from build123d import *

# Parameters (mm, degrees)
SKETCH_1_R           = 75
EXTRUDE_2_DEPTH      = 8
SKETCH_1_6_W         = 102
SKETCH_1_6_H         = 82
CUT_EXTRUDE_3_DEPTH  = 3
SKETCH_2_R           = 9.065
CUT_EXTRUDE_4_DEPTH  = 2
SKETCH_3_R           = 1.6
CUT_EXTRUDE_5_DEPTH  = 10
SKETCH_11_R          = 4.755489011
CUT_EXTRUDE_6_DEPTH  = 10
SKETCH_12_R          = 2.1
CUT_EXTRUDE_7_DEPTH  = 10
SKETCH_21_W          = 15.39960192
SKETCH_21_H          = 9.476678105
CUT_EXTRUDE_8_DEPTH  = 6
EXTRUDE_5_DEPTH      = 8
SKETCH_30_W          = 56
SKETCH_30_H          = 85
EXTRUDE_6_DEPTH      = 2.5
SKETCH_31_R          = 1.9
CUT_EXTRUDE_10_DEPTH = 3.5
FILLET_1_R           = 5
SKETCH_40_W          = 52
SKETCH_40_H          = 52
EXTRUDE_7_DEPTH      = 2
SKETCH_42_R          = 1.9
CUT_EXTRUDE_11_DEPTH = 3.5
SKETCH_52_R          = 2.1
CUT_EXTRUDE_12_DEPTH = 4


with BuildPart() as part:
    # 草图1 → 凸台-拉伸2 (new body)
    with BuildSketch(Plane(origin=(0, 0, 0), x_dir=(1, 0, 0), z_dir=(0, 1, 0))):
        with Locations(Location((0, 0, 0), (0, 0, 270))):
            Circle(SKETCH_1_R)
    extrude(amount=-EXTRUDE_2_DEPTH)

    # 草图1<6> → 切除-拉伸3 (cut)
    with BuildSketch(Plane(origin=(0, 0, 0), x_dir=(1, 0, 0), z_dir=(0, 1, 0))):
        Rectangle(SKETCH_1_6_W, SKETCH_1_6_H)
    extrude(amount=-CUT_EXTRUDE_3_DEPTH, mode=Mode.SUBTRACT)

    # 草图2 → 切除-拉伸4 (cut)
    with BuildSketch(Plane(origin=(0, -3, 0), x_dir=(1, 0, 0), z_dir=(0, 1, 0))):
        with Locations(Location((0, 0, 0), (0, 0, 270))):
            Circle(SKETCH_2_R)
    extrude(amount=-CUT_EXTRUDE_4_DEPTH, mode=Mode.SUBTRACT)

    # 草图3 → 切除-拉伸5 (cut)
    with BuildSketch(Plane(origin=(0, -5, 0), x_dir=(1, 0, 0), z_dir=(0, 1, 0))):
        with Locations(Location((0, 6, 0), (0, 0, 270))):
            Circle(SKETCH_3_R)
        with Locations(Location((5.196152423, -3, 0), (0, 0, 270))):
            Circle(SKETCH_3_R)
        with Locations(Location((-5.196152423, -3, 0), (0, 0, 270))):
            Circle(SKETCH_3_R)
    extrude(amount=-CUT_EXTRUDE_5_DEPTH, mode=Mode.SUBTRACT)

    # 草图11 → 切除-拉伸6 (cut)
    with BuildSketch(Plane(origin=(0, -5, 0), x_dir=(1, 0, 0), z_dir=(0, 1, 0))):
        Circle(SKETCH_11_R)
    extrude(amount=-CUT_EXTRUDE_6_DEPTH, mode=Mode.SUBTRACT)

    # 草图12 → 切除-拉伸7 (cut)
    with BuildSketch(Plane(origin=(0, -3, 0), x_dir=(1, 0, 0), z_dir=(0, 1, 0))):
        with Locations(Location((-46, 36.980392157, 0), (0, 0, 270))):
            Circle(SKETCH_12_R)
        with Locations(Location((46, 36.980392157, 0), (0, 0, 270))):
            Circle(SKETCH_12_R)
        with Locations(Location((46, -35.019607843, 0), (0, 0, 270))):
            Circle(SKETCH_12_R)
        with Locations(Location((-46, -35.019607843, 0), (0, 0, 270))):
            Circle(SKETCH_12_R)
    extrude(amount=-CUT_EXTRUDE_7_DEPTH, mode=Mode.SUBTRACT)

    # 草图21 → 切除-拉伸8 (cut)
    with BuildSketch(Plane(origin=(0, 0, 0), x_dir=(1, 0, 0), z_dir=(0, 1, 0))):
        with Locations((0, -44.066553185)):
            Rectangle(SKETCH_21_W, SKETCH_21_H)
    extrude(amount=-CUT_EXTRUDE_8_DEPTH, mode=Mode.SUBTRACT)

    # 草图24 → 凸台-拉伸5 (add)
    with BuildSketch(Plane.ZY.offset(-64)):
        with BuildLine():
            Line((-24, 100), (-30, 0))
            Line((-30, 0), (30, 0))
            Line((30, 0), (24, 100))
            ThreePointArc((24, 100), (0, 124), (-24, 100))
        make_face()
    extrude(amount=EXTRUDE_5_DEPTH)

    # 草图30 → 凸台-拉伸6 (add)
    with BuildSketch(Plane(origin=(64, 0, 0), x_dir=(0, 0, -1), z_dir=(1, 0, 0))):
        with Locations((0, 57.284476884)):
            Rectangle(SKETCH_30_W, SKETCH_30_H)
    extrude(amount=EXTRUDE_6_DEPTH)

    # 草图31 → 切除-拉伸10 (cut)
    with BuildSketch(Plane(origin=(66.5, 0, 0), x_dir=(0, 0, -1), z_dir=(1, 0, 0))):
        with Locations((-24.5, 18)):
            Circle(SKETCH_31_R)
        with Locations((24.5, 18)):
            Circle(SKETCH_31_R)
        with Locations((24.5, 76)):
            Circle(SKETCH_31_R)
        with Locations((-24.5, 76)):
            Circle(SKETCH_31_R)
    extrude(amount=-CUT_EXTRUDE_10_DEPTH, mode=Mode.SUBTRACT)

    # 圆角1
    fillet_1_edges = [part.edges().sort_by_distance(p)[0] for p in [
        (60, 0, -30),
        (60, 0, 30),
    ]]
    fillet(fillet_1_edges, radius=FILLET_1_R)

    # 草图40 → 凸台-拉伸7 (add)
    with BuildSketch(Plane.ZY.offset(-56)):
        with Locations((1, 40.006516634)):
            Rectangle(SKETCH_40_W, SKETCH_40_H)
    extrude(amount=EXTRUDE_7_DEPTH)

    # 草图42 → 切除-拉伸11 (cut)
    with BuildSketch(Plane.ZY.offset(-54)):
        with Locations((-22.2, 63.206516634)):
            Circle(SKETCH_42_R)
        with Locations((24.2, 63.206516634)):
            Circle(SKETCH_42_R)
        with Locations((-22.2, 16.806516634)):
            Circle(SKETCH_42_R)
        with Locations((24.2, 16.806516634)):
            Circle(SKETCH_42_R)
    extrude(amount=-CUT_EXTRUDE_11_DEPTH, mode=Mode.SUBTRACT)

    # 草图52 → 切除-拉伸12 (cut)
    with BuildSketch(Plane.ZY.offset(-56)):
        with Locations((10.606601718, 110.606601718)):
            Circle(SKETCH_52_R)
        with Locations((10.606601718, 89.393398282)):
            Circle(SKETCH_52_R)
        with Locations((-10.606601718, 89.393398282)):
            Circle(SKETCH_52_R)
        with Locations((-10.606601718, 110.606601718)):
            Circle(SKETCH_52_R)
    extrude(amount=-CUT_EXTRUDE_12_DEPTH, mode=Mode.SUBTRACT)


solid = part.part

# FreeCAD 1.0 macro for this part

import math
import FreeCAD as App
import Part
import Sketcher
from FreeCAD import Vector
Q = App.Units.Quantity


def edges_at(feature, points):
    """Names of the edges that pass closest to the given points."""
    edges = feature.Shape.Edges
    near = lambda p: min(range(len(edges)), key=lambda i: edges[i].distToShape(Part.Vertex(*p))[0])
    return sorted({f"Edge{near(p) + 1}" for p in points})

doc = App.newDocument("Part")
body = doc.addObject("PartDesign::Body", "Body")

# Sketch on XZ plane
sketch1 = body.newObject("Sketcher::SketchObject", "Sketch")
sketch1.AttachmentSupport = (doc.getObject("XZ_Plane"), [""])
sketch1.MapMode = "FlatFace"
sketch1.addGeometry(Part.Circle(Vector(0, 0, 0), Vector(0, 0, 1), 75), False)
sketch1.addConstraint(Sketcher.Constraint("Coincident", 0, 3, -1, 1))
sketch1.addConstraint(Sketcher.Constraint("Diameter", 0, Q("150 mm")))
pad1 = body.newObject("PartDesign::Pad", "Pad")
pad1.Profile = sketch1
pad1.Length = 8

# Sketch on XZ plane
sketch2 = body.newObject("Sketcher::SketchObject", "Sketch001")
sketch2.AttachmentSupport = (doc.getObject("XZ_Plane"), [""])
sketch2.MapMode = "FlatFace"
sketch2.addGeometry(Part.LineSegment(Vector(-51, -41, 0), Vector(-51, 41, 0)), False)
sketch2.addGeometry(Part.LineSegment(Vector(-51, 41, 0), Vector(51, 41, 0)), False)
sketch2.addGeometry(Part.LineSegment(Vector(51, 41, 0), Vector(51, -41, 0)), False)
sketch2.addGeometry(Part.LineSegment(Vector(51, -41, 0), Vector(-51, -41, 0)), False)
sketch2.addConstraint(Sketcher.Constraint("Coincident", 0, 2, 1, 1))
sketch2.addConstraint(Sketcher.Constraint("Coincident", 1, 2, 2, 1))
sketch2.addConstraint(Sketcher.Constraint("Coincident", 2, 2, 3, 1))
sketch2.addConstraint(Sketcher.Constraint("Coincident", 3, 2, 0, 1))
sketch2.addConstraint(Sketcher.Constraint("Vertical", 0))
sketch2.addConstraint(Sketcher.Constraint("Horizontal", 1))
sketch2.addConstraint(Sketcher.Constraint("Vertical", 2))
sketch2.addConstraint(Sketcher.Constraint("Horizontal", 3))
sketch2.addConstraint(Sketcher.Constraint("Symmetric", 0, 2, 2, 2, -1, 1))
sketch2.addConstraint(Sketcher.Constraint("DistanceX", 1, 1, 1, 2, Q("102 mm")))
sketch2.addConstraint(Sketcher.Constraint("DistanceY", 0, 1, 0, 2, Q("82 mm")))
pocket1 = body.newObject("PartDesign::Pocket", "Pocket")
pocket1.Profile = sketch2
pocket1.Length = 3
pocket1.Reversed = True

# Sketch on XZ plane
sketch3 = body.newObject("Sketcher::SketchObject", "Sketch002")
sketch3.AttachmentSupport = (doc.getObject("XZ_Plane"), [""])
sketch3.MapMode = "FlatFace"
sketch3.AttachmentOffset = App.Placement(Vector(0, 0, 3), App.Rotation())
sketch3.addGeometry(Part.Circle(Vector(0, 0, 0), Vector(0, 0, 1), 9), False)
sketch3.addConstraint(Sketcher.Constraint("Coincident", 0, 3, -1, 1))
sketch3.addConstraint(Sketcher.Constraint("Diameter", 0, Q("18.13 mm")))
pocket2 = body.newObject("PartDesign::Pocket", "Pocket001")
pocket2.Profile = sketch3
pocket2.Length = 2
pocket2.Reversed = True

# Sketch on XZ plane
sketch4 = body.newObject("Sketcher::SketchObject", "Sketch003")
sketch4.AttachmentSupport = (doc.getObject("XZ_Plane"), [""])
sketch4.MapMode = "FlatFace"
sketch4.AttachmentOffset = App.Placement(Vector(0, 0, 5), App.Rotation())
sketch4.addGeometry(Part.Circle(Vector(0, -6, 0), Vector(0, 0, 1), 1.6), False)
sketch4.addGeometry(Part.Circle(Vector(5.2, 3, 0), Vector(0, 0, 1), 1.6), False)
sketch4.addGeometry(Part.Circle(Vector(-5.2, 3, 0), Vector(0, 0, 1), 1.6), False)
sketch4.addConstraint(Sketcher.Constraint("Equal", 0, 1))
sketch4.addConstraint(Sketcher.Constraint("Equal", 1, 2))
sketch4.addConstraint(Sketcher.Constraint("Symmetric", 1, 3, 2, 3, -2))
sketch4.addConstraint(Sketcher.Constraint("PointOnObject", 0, 3, -2))
sketch4.addConstraint(Sketcher.Constraint("Diameter", 0, Q("3.2 mm")))
sketch4.addConstraint(Sketcher.Constraint("DistanceY", 0, 3, -1, 1, Q("6 mm")))
sketch4.addConstraint(Sketcher.Constraint("DistanceY", -1, 1, 1, 3, Q("3 mm")))
sketch4.addConstraint(Sketcher.Constraint("DistanceX", -1, 1, 1, 3, Q("5.196152 mm")))
pocket3 = body.newObject("PartDesign::Pocket", "Pocket002")
pocket3.Profile = sketch4
pocket3.Length = 10
pocket3.Reversed = True

# Sketch on XZ plane
sketch5 = body.newObject("Sketcher::SketchObject", "Sketch004")
sketch5.AttachmentSupport = (doc.getObject("XZ_Plane"), [""])
sketch5.MapMode = "FlatFace"
sketch5.AttachmentOffset = App.Placement(Vector(0, 0, 5), App.Rotation())
sketch5.addGeometry(Part.Circle(Vector(0, 0, 0), Vector(0, 0, 1), 4.8), False)
sketch5.addConstraint(Sketcher.Constraint("Coincident", 0, 3, -1, 1))
sketch5.addConstraint(Sketcher.Constraint("Diameter", 0, Q("9.510978 mm")))
pocket4 = body.newObject("PartDesign::Pocket", "Pocket003")
pocket4.Profile = sketch5
pocket4.Length = 10
pocket4.Reversed = True

# Sketch on XZ plane
sketch6 = body.newObject("Sketcher::SketchObject", "Sketch005")
sketch6.AttachmentSupport = (doc.getObject("XZ_Plane"), [""])
sketch6.MapMode = "FlatFace"
sketch6.AttachmentOffset = App.Placement(Vector(0, 0, 3), App.Rotation())
sketch6.addGeometry(Part.Circle(Vector(-46, -37, 0), Vector(0, 0, 1), 2.1), False)
sketch6.addGeometry(Part.Circle(Vector(46, -37, 0), Vector(0, 0, 1), 2.1), False)
sketch6.addGeometry(Part.Circle(Vector(46, 35, 0), Vector(0, 0, 1), 2.1), False)
sketch6.addGeometry(Part.Circle(Vector(-46, 35, 0), Vector(0, 0, 1), 2.1), False)
sketch6.addConstraint(Sketcher.Constraint("Equal", 0, 1))
sketch6.addConstraint(Sketcher.Constraint("Equal", 1, 2))
sketch6.addConstraint(Sketcher.Constraint("Equal", 2, 3))
sketch6.addConstraint(Sketcher.Constraint("Symmetric", 0, 3, 1, 3, -2))
sketch6.addConstraint(Sketcher.Constraint("Symmetric", 2, 3, 3, 3, -2))
sketch6.addConstraint(Sketcher.Constraint("Vertical", 1, 3, 2, 3))
sketch6.addConstraint(Sketcher.Constraint("Diameter", 0, Q("4.2 mm")))
sketch6.addConstraint(Sketcher.Constraint("DistanceX", 0, 3, -1, 1, Q("46 mm")))
sketch6.addConstraint(Sketcher.Constraint("DistanceY", 1, 3, 2, 3, Q("72 mm")))
sketch6.addConstraint(Sketcher.Constraint("DistanceY", 0, 3, -1, 1, Q("36.980392 mm")))
pocket5 = body.newObject("PartDesign::Pocket", "Pocket004")
pocket5.Profile = sketch6
pocket5.Length = 10
pocket5.Reversed = True

# Sketch on XZ plane
sketch7 = body.newObject("Sketcher::SketchObject", "Sketch006")
sketch7.AttachmentSupport = (doc.getObject("XZ_Plane"), [""])
sketch7.MapMode = "FlatFace"
sketch7.addGeometry(Part.LineSegment(Vector(-8, 39, 0), Vector(-8, 49, 0)), False)
sketch7.addGeometry(Part.LineSegment(Vector(-8, 49, 0), Vector(8, 49, 0)), False)
sketch7.addGeometry(Part.LineSegment(Vector(8, 49, 0), Vector(8, 39, 0)), False)
sketch7.addGeometry(Part.LineSegment(Vector(8, 39, 0), Vector(-8, 39, 0)), False)
sketch7.addConstraint(Sketcher.Constraint("Coincident", 0, 2, 1, 1))
sketch7.addConstraint(Sketcher.Constraint("Coincident", 1, 2, 2, 1))
sketch7.addConstraint(Sketcher.Constraint("Coincident", 2, 2, 3, 1))
sketch7.addConstraint(Sketcher.Constraint("Coincident", 3, 2, 0, 1))
sketch7.addConstraint(Sketcher.Constraint("Vertical", 0))
sketch7.addConstraint(Sketcher.Constraint("Horizontal", 1))
sketch7.addConstraint(Sketcher.Constraint("Vertical", 2))
sketch7.addConstraint(Sketcher.Constraint("Horizontal", 3))
sketch7.addConstraint(Sketcher.Constraint("DistanceX", 1, 1, 1, 2, Q("15.399602 mm")))
sketch7.addConstraint(Sketcher.Constraint("DistanceY", 0, 1, 0, 2, Q("9.476678 mm")))
sketch7.addConstraint(Sketcher.Constraint("DistanceX", 0, 2, -1, 1, Q("7.699801 mm")))
sketch7.addConstraint(Sketcher.Constraint("DistanceY", -1, 1, 0, 2, Q("48.804892 mm")))
pocket6 = body.newObject("PartDesign::Pocket", "Pocket005")
pocket6.Profile = sketch7
pocket6.Length = 6
pocket6.Reversed = True

# Sketch on YZ plane
sketch8 = body.newObject("Sketcher::SketchObject", "Sketch007")
sketch8.AttachmentSupport = (doc.getObject("YZ_Plane"), [""])
sketch8.MapMode = "FlatFace"
sketch8.AttachmentOffset = App.Placement(Vector(0, 0, 64), App.Rotation())
sketch8.addGeometry(Part.LineSegment(Vector(100, -24, 0), Vector(0, -30, 0)), False)
sketch8.addGeometry(Part.LineSegment(Vector(0, -30, 0), Vector(0, 30, 0)), False)
sketch8.addGeometry(Part.LineSegment(Vector(0, 30, 0), Vector(100, 24, 0)), False)
sketch8.addGeometry(Part.ArcOfCircle(Part.Circle(Vector(100, 0, 0), Vector(0, 0, 1), 24), math.radians(-90), math.radians(90)), False)
sketch8.addConstraint(Sketcher.Constraint("Coincident", 0, 2, 1, 1))
sketch8.addConstraint(Sketcher.Constraint("Coincident", 1, 2, 2, 1))
sketch8.addConstraint(Sketcher.Constraint("Coincident", 2, 2, 3, 2))
sketch8.addConstraint(Sketcher.Constraint("Coincident", 3, 1, 0, 1))
sketch8.addConstraint(Sketcher.Constraint("Vertical", 1))
sketch8.addConstraint(Sketcher.Constraint("Symmetric", 0, 2, 1, 2, -1, 1))
sketch8.addConstraint(Sketcher.Constraint("Symmetric", 2, 2, 3, 1, -1))
sketch8.addConstraint(Sketcher.Constraint("Vertical", 3, 3, 2, 2))
sketch8.addConstraint(Sketcher.Constraint("Radius", 3, Q("24 mm")))
sketch8.addConstraint(Sketcher.Constraint("DistanceY", 1, 1, 1, 2, Q("60 mm")))
sketch8.addConstraint(Sketcher.Constraint("DistanceX", -1, 1, 3, 3, Q("100 mm")))
pad2 = body.newObject("PartDesign::Pad", "Pad001")
pad2.Profile = sketch8
pad2.Length = 8
pad2.Reversed = True

# Sketch on YZ plane
sketch9 = body.newObject("Sketcher::SketchObject", "Sketch008")
sketch9.AttachmentSupport = (doc.getObject("YZ_Plane"), [""])
sketch9.MapMode = "FlatFace"
sketch9.AttachmentOffset = App.Placement(Vector(0, 0, 64), App.Rotation())
sketch9.addGeometry(Part.LineSegment(Vector(100, 28, 0), Vector(15, 28, 0)), False)
sketch9.addGeometry(Part.LineSegment(Vector(15, 28, 0), Vector(15, -28, 0)), False)
sketch9.addGeometry(Part.LineSegment(Vector(15, -28, 0), Vector(100, -28, 0)), False)
sketch9.addGeometry(Part.LineSegment(Vector(100, -28, 0), Vector(100, 28, 0)), False)
sketch9.addConstraint(Sketcher.Constraint("Coincident", 0, 2, 1, 1))
sketch9.addConstraint(Sketcher.Constraint("Coincident", 1, 2, 2, 1))
sketch9.addConstraint(Sketcher.Constraint("Coincident", 2, 2, 3, 1))
sketch9.addConstraint(Sketcher.Constraint("Coincident", 3, 2, 0, 1))
sketch9.addConstraint(Sketcher.Constraint("Horizontal", 0))
sketch9.addConstraint(Sketcher.Constraint("Vertical", 1))
sketch9.addConstraint(Sketcher.Constraint("Horizontal", 2))
sketch9.addConstraint(Sketcher.Constraint("Vertical", 3))
sketch9.addConstraint(Sketcher.Constraint("DistanceX", 0, 2, 0, 1, Q("85 mm")))
sketch9.addConstraint(Sketcher.Constraint("DistanceY", 1, 2, 1, 1, Q("56 mm")))
sketch9.addConstraint(Sketcher.Constraint("DistanceY", -1, 1, 0, 2, Q("28 mm")))
sketch9.addConstraint(Sketcher.Constraint("DistanceX", -1, 1, 0, 2, Q("14.784477 mm")))
pad3 = body.newObject("PartDesign::Pad", "Pad002")
pad3.Profile = sketch9
pad3.Length = 2.5

# Sketch on YZ plane
sketch10 = body.newObject("Sketcher::SketchObject", "Sketch009")
sketch10.AttachmentSupport = (doc.getObject("YZ_Plane"), [""])
sketch10.MapMode = "FlatFace"
sketch10.AttachmentOffset = App.Placement(Vector(0, 0, 66.5), App.Rotation())
sketch10.addGeometry(Part.Circle(Vector(18, 24.5, 0), Vector(0, 0, 1), 1.9), False)
sketch10.addGeometry(Part.Circle(Vector(18, -24.5, 0), Vector(0, 0, 1), 1.9), False)
sketch10.addGeometry(Part.Circle(Vector(76, -24.5, 0), Vector(0, 0, 1), 1.9), False)
sketch10.addGeometry(Part.Circle(Vector(76, 24.5, 0), Vector(0, 0, 1), 1.9), False)
sketch10.addConstraint(Sketcher.Constraint("Equal", 0, 1))
sketch10.addConstraint(Sketcher.Constraint("Equal", 1, 2))
sketch10.addConstraint(Sketcher.Constraint("Equal", 2, 3))
sketch10.addConstraint(Sketcher.Constraint("Symmetric", 0, 3, 1, 3, -1))
sketch10.addConstraint(Sketcher.Constraint("Symmetric", 2, 3, 3, 3, -1))
sketch10.addConstraint(Sketcher.Constraint("Horizontal", 1, 3, 2, 3))
sketch10.addConstraint(Sketcher.Constraint("Diameter", 0, Q("3.8 mm")))
sketch10.addConstraint(Sketcher.Constraint("DistanceX", -1, 1, 0, 3, Q("18 mm")))
sketch10.addConstraint(Sketcher.Constraint("DistanceX", -1, 1, 2, 3, Q("76 mm")))
sketch10.addConstraint(Sketcher.Constraint("DistanceY", 1, 3, 0, 3, Q("49 mm")))
pocket7 = body.newObject("PartDesign::Pocket", "Pocket006")
pocket7.Profile = sketch10
pocket7.Length = 3.5
doc.recompute()

fillet = body.newObject("PartDesign::Fillet", "Fillet")
fillet.Base = (pocket7, edges_at(pocket7, [(60, 0, -30), (60, 0, 30)]))
fillet.Radius = 5

# Sketch on YZ plane
sketch11 = body.newObject("Sketcher::SketchObject", "Sketch010")
sketch11.AttachmentSupport = (doc.getObject("YZ_Plane"), [""])
sketch11.MapMode = "FlatFace"
sketch11.AttachmentOffset = App.Placement(Vector(0, 0, 56), App.Rotation())
sketch11.addGeometry(Part.LineSegment(Vector(66, -25, 0), Vector(14, -25, 0)), False)
sketch11.addGeometry(Part.LineSegment(Vector(14, -25, 0), Vector(14, 27, 0)), False)
sketch11.addGeometry(Part.LineSegment(Vector(14, 27, 0), Vector(66, 27, 0)), False)
sketch11.addGeometry(Part.LineSegment(Vector(66, 27, 0), Vector(66, -25, 0)), False)
sketch11.addConstraint(Sketcher.Constraint("Coincident", 0, 2, 1, 1))
sketch11.addConstraint(Sketcher.Constraint("Coincident", 1, 2, 2, 1))
sketch11.addConstraint(Sketcher.Constraint("Coincident", 2, 2, 3, 1))
sketch11.addConstraint(Sketcher.Constraint("Coincident", 3, 2, 0, 1))
sketch11.addConstraint(Sketcher.Constraint("Horizontal", 0))
sketch11.addConstraint(Sketcher.Constraint("Vertical", 1))
sketch11.addConstraint(Sketcher.Constraint("Horizontal", 2))
sketch11.addConstraint(Sketcher.Constraint("Vertical", 3))
sketch11.addConstraint(Sketcher.Constraint("Equal", 2, 1))
sketch11.addConstraint(Sketcher.Constraint("DistanceX", 0, 2, 0, 1, Q("52 mm")))
sketch11.addConstraint(Sketcher.Constraint("DistanceY", 0, 2, -1, 1, Q("25 mm")))
sketch11.addConstraint(Sketcher.Constraint("DistanceX", -1, 1, 0, 2, Q("14.006517 mm")))
pad4 = body.newObject("PartDesign::Pad", "Pad003")
pad4.Profile = sketch11
pad4.Length = 2
pad4.Reversed = True

# Sketch on YZ plane
sketch12 = body.newObject("Sketcher::SketchObject", "Sketch011")
sketch12.AttachmentSupport = (doc.getObject("YZ_Plane"), [""])
sketch12.MapMode = "FlatFace"
sketch12.AttachmentOffset = App.Placement(Vector(0, 0, 54), App.Rotation())
sketch12.addGeometry(Part.Circle(Vector(63.2, -22.2, 0), Vector(0, 0, 1), 1.9), False)
sketch12.addGeometry(Part.Circle(Vector(63.2, 24.2, 0), Vector(0, 0, 1), 1.9), False)
sketch12.addGeometry(Part.Circle(Vector(16.8, -22.2, 0), Vector(0, 0, 1), 1.9), False)
sketch12.addGeometry(Part.Circle(Vector(16.8, 24.2, 0), Vector(0, 0, 1), 1.9), False)
sketch12.addConstraint(Sketcher.Constraint("Equal", 0, 1))
sketch12.addConstraint(Sketcher.Constraint("Equal", 1, 2))
sketch12.addConstraint(Sketcher.Constraint("Equal", 2, 3))
sketch12.addConstraint(Sketcher.Constraint("Horizontal", 0, 3, 2, 3))
sketch12.addConstraint(Sketcher.Constraint("Horizontal", 1, 3, 3, 3))
sketch12.addConstraint(Sketcher.Constraint("Vertical", 0, 3, 1, 3))
sketch12.addConstraint(Sketcher.Constraint("Vertical", 2, 3, 3, 3))
sketch12.addConstraint(Sketcher.Constraint("Diameter", 0, Q("3.8 mm")))
sketch12.addConstraint(Sketcher.Constraint("DistanceY", 0, 3, -1, 1, Q("22.2 mm")))
sketch12.addConstraint(Sketcher.Constraint("DistanceY", -1, 1, 1, 3, Q("24.2 mm")))
sketch12.addConstraint(Sketcher.Constraint("DistanceX", 2, 3, 0, 3, Q("46.4 mm")))
sketch12.addConstraint(Sketcher.Constraint("DistanceX", -1, 1, 0, 3, Q("63.206517 mm")))
pocket8 = body.newObject("PartDesign::Pocket", "Pocket007")
pocket8.Profile = sketch12
pocket8.Length = 3.5
pocket8.Reversed = True

# Sketch on YZ plane
sketch13 = body.newObject("Sketcher::SketchObject", "Sketch012")
sketch13.AttachmentSupport = (doc.getObject("YZ_Plane"), [""])
sketch13.MapMode = "FlatFace"
sketch13.AttachmentOffset = App.Placement(Vector(0, 0, 56), App.Rotation())
sketch13.addGeometry(Part.Circle(Vector(110.6, 10.6, 0), Vector(0, 0, 1), 2.1), False)
sketch13.addGeometry(Part.Circle(Vector(89.4, 10.6, 0), Vector(0, 0, 1), 2.1), False)
sketch13.addGeometry(Part.Circle(Vector(89.4, -10.6, 0), Vector(0, 0, 1), 2.1), False)
sketch13.addGeometry(Part.Circle(Vector(110.6, -10.6, 0), Vector(0, 0, 1), 2.1), False)
sketch13.addConstraint(Sketcher.Constraint("Equal", 0, 1))
sketch13.addConstraint(Sketcher.Constraint("Equal", 1, 2))
sketch13.addConstraint(Sketcher.Constraint("Equal", 2, 3))
sketch13.addConstraint(Sketcher.Constraint("Symmetric", 1, 3, 2, 3, -1))
sketch13.addConstraint(Sketcher.Constraint("Symmetric", 0, 3, 3, 3, -1))
sketch13.addConstraint(Sketcher.Constraint("Horizontal", 0, 3, 1, 3))
sketch13.addConstraint(Sketcher.Constraint("Diameter", 0, Q("4.2 mm")))
sketch13.addConstraint(Sketcher.Constraint("DistanceX", -1, 1, 0, 3, Q("110.606602 mm")))
sketch13.addConstraint(Sketcher.Constraint("DistanceY", -1, 1, 0, 3, Q("10.606602 mm")))
sketch13.addConstraint(Sketcher.Constraint("DistanceX", -1, 1, 1, 3, Q("89.393398 mm")))
pocket9 = body.newObject("PartDesign::Pocket", "Pocket008")
pocket9.Profile = sketch13
pocket9.Length = 4
pocket9.Reversed = True

doc.recompute()
